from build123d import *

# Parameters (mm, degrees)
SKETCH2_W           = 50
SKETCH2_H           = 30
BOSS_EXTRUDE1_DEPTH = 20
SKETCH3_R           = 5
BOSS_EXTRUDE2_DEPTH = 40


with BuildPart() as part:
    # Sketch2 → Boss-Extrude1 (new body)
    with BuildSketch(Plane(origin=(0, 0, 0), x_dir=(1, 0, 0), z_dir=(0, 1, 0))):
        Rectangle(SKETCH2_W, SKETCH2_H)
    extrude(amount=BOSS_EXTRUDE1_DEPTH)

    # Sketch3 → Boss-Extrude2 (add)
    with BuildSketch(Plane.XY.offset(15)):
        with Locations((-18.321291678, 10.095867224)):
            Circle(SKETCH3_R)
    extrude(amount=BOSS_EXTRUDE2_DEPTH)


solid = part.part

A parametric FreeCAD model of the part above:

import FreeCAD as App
import Part
import Sketcher


def add_polygon(sketch, points):
    """Adds a closed chain of lines whose ends are joined by coincident constraints."""
    first, n = sketch.GeometryCount, len(points)
    for a, b in zip(points, points[1:] + points[:1]):
        sketch.addGeometry(Part.LineSegment(App.Vector(*a, 0), App.Vector(*b, 0)), False)
    for i in range(n):
        sketch.addConstraint(Sketcher.Constraint("Coincident", first + i, 2, first + (i + 1) % n, 1))

doc = App.newDocument("Part")
params = doc.addObject("Spreadsheet::Sheet", "Params")
for row, (alias, value) in enumerate([
    ("sketch1_width", "50 mm"),
    ("sketch1_height", "30 mm"),
    ("pad1_length", "20 mm"),
    ("sketch2_diameter", "10 mm"),
    ("pad2_length", "40 mm"),
], start=1):
    params.set(f"A{row}", alias)
    params.set(f"B{row}", "=" + value)
    params.setAlias(f"B{row}", alias)

body = doc.addObject("PartDesign::Body", "Body")

sketch1 = body.newObject("Sketcher::SketchObject", "Sketch")
sketch1.AttachmentSupport = (doc.getObject("XZ_Plane"), [""])
sketch1.MapMode = "FlatFace"
add_polygon(sketch1, [(-25, -15), (-25, 15), (25, 15), (25, -15)])
sketch1.addConstraint([
    Sketcher.Constraint("Vertical", 0),
    Sketcher.Constraint("Horizontal", 1),
    Sketcher.Constraint("Vertical", 2),
    Sketcher.Constraint("Horizontal", 3),
    Sketcher.Constraint("Symmetric", 0, 2, 2, 2, -1, 1),
    Sketcher.Constraint("DistanceX", 1, 1, 1, 2, 50.0),
    Sketcher.Constraint("DistanceY", 0, 1, 0, 2, 30.0),
])
sketch1.setExpression("Constraints[9]", "Params.sketch1_width")
sketch1.setExpression("Constraints[10]", "Params.sketch1_height")
pad1 = body.newObject("PartDesign::Pad", "Pad")
pad1.Profile = sketch1
pad1.setExpression("Length", "Params.pad1_length")
pad1.Reversed = True

sketch2 = body.newObject("Sketcher::SketchObject", "Sketch001")
sketch2.AttachmentSupport = (doc.getObject("XY_Plane"), [""])
sketch2.MapMode = "FlatFace"
sketch2.AttachmentOffset = App.Placement(App.Vector(0, 0, 15), App.Rotation())
sketch2.addGeometry(Part.Circle(App.Vector(-18.321292, 10.095867, 0), App.Vector(0, 0, 1), 5), False)
sketch2.addConstraint([
    Sketcher.Constraint("Diameter", 0, 10.0),
    Sketcher.Constraint("DistanceX", 0, 3, -1, 1, 18.321292),
    Sketcher.Constraint("DistanceY", -1, 1, 0, 3, 10.095867),
])
sketch2.setExpression("Constraints[0]", "Params.sketch2_diameter")
pad2 = body.newObject("PartDesign::Pad", "Pad001")
pad2.Profile = sketch2
pad2.setExpression("Length", "Params.pad2_length")

doc.recompute()
